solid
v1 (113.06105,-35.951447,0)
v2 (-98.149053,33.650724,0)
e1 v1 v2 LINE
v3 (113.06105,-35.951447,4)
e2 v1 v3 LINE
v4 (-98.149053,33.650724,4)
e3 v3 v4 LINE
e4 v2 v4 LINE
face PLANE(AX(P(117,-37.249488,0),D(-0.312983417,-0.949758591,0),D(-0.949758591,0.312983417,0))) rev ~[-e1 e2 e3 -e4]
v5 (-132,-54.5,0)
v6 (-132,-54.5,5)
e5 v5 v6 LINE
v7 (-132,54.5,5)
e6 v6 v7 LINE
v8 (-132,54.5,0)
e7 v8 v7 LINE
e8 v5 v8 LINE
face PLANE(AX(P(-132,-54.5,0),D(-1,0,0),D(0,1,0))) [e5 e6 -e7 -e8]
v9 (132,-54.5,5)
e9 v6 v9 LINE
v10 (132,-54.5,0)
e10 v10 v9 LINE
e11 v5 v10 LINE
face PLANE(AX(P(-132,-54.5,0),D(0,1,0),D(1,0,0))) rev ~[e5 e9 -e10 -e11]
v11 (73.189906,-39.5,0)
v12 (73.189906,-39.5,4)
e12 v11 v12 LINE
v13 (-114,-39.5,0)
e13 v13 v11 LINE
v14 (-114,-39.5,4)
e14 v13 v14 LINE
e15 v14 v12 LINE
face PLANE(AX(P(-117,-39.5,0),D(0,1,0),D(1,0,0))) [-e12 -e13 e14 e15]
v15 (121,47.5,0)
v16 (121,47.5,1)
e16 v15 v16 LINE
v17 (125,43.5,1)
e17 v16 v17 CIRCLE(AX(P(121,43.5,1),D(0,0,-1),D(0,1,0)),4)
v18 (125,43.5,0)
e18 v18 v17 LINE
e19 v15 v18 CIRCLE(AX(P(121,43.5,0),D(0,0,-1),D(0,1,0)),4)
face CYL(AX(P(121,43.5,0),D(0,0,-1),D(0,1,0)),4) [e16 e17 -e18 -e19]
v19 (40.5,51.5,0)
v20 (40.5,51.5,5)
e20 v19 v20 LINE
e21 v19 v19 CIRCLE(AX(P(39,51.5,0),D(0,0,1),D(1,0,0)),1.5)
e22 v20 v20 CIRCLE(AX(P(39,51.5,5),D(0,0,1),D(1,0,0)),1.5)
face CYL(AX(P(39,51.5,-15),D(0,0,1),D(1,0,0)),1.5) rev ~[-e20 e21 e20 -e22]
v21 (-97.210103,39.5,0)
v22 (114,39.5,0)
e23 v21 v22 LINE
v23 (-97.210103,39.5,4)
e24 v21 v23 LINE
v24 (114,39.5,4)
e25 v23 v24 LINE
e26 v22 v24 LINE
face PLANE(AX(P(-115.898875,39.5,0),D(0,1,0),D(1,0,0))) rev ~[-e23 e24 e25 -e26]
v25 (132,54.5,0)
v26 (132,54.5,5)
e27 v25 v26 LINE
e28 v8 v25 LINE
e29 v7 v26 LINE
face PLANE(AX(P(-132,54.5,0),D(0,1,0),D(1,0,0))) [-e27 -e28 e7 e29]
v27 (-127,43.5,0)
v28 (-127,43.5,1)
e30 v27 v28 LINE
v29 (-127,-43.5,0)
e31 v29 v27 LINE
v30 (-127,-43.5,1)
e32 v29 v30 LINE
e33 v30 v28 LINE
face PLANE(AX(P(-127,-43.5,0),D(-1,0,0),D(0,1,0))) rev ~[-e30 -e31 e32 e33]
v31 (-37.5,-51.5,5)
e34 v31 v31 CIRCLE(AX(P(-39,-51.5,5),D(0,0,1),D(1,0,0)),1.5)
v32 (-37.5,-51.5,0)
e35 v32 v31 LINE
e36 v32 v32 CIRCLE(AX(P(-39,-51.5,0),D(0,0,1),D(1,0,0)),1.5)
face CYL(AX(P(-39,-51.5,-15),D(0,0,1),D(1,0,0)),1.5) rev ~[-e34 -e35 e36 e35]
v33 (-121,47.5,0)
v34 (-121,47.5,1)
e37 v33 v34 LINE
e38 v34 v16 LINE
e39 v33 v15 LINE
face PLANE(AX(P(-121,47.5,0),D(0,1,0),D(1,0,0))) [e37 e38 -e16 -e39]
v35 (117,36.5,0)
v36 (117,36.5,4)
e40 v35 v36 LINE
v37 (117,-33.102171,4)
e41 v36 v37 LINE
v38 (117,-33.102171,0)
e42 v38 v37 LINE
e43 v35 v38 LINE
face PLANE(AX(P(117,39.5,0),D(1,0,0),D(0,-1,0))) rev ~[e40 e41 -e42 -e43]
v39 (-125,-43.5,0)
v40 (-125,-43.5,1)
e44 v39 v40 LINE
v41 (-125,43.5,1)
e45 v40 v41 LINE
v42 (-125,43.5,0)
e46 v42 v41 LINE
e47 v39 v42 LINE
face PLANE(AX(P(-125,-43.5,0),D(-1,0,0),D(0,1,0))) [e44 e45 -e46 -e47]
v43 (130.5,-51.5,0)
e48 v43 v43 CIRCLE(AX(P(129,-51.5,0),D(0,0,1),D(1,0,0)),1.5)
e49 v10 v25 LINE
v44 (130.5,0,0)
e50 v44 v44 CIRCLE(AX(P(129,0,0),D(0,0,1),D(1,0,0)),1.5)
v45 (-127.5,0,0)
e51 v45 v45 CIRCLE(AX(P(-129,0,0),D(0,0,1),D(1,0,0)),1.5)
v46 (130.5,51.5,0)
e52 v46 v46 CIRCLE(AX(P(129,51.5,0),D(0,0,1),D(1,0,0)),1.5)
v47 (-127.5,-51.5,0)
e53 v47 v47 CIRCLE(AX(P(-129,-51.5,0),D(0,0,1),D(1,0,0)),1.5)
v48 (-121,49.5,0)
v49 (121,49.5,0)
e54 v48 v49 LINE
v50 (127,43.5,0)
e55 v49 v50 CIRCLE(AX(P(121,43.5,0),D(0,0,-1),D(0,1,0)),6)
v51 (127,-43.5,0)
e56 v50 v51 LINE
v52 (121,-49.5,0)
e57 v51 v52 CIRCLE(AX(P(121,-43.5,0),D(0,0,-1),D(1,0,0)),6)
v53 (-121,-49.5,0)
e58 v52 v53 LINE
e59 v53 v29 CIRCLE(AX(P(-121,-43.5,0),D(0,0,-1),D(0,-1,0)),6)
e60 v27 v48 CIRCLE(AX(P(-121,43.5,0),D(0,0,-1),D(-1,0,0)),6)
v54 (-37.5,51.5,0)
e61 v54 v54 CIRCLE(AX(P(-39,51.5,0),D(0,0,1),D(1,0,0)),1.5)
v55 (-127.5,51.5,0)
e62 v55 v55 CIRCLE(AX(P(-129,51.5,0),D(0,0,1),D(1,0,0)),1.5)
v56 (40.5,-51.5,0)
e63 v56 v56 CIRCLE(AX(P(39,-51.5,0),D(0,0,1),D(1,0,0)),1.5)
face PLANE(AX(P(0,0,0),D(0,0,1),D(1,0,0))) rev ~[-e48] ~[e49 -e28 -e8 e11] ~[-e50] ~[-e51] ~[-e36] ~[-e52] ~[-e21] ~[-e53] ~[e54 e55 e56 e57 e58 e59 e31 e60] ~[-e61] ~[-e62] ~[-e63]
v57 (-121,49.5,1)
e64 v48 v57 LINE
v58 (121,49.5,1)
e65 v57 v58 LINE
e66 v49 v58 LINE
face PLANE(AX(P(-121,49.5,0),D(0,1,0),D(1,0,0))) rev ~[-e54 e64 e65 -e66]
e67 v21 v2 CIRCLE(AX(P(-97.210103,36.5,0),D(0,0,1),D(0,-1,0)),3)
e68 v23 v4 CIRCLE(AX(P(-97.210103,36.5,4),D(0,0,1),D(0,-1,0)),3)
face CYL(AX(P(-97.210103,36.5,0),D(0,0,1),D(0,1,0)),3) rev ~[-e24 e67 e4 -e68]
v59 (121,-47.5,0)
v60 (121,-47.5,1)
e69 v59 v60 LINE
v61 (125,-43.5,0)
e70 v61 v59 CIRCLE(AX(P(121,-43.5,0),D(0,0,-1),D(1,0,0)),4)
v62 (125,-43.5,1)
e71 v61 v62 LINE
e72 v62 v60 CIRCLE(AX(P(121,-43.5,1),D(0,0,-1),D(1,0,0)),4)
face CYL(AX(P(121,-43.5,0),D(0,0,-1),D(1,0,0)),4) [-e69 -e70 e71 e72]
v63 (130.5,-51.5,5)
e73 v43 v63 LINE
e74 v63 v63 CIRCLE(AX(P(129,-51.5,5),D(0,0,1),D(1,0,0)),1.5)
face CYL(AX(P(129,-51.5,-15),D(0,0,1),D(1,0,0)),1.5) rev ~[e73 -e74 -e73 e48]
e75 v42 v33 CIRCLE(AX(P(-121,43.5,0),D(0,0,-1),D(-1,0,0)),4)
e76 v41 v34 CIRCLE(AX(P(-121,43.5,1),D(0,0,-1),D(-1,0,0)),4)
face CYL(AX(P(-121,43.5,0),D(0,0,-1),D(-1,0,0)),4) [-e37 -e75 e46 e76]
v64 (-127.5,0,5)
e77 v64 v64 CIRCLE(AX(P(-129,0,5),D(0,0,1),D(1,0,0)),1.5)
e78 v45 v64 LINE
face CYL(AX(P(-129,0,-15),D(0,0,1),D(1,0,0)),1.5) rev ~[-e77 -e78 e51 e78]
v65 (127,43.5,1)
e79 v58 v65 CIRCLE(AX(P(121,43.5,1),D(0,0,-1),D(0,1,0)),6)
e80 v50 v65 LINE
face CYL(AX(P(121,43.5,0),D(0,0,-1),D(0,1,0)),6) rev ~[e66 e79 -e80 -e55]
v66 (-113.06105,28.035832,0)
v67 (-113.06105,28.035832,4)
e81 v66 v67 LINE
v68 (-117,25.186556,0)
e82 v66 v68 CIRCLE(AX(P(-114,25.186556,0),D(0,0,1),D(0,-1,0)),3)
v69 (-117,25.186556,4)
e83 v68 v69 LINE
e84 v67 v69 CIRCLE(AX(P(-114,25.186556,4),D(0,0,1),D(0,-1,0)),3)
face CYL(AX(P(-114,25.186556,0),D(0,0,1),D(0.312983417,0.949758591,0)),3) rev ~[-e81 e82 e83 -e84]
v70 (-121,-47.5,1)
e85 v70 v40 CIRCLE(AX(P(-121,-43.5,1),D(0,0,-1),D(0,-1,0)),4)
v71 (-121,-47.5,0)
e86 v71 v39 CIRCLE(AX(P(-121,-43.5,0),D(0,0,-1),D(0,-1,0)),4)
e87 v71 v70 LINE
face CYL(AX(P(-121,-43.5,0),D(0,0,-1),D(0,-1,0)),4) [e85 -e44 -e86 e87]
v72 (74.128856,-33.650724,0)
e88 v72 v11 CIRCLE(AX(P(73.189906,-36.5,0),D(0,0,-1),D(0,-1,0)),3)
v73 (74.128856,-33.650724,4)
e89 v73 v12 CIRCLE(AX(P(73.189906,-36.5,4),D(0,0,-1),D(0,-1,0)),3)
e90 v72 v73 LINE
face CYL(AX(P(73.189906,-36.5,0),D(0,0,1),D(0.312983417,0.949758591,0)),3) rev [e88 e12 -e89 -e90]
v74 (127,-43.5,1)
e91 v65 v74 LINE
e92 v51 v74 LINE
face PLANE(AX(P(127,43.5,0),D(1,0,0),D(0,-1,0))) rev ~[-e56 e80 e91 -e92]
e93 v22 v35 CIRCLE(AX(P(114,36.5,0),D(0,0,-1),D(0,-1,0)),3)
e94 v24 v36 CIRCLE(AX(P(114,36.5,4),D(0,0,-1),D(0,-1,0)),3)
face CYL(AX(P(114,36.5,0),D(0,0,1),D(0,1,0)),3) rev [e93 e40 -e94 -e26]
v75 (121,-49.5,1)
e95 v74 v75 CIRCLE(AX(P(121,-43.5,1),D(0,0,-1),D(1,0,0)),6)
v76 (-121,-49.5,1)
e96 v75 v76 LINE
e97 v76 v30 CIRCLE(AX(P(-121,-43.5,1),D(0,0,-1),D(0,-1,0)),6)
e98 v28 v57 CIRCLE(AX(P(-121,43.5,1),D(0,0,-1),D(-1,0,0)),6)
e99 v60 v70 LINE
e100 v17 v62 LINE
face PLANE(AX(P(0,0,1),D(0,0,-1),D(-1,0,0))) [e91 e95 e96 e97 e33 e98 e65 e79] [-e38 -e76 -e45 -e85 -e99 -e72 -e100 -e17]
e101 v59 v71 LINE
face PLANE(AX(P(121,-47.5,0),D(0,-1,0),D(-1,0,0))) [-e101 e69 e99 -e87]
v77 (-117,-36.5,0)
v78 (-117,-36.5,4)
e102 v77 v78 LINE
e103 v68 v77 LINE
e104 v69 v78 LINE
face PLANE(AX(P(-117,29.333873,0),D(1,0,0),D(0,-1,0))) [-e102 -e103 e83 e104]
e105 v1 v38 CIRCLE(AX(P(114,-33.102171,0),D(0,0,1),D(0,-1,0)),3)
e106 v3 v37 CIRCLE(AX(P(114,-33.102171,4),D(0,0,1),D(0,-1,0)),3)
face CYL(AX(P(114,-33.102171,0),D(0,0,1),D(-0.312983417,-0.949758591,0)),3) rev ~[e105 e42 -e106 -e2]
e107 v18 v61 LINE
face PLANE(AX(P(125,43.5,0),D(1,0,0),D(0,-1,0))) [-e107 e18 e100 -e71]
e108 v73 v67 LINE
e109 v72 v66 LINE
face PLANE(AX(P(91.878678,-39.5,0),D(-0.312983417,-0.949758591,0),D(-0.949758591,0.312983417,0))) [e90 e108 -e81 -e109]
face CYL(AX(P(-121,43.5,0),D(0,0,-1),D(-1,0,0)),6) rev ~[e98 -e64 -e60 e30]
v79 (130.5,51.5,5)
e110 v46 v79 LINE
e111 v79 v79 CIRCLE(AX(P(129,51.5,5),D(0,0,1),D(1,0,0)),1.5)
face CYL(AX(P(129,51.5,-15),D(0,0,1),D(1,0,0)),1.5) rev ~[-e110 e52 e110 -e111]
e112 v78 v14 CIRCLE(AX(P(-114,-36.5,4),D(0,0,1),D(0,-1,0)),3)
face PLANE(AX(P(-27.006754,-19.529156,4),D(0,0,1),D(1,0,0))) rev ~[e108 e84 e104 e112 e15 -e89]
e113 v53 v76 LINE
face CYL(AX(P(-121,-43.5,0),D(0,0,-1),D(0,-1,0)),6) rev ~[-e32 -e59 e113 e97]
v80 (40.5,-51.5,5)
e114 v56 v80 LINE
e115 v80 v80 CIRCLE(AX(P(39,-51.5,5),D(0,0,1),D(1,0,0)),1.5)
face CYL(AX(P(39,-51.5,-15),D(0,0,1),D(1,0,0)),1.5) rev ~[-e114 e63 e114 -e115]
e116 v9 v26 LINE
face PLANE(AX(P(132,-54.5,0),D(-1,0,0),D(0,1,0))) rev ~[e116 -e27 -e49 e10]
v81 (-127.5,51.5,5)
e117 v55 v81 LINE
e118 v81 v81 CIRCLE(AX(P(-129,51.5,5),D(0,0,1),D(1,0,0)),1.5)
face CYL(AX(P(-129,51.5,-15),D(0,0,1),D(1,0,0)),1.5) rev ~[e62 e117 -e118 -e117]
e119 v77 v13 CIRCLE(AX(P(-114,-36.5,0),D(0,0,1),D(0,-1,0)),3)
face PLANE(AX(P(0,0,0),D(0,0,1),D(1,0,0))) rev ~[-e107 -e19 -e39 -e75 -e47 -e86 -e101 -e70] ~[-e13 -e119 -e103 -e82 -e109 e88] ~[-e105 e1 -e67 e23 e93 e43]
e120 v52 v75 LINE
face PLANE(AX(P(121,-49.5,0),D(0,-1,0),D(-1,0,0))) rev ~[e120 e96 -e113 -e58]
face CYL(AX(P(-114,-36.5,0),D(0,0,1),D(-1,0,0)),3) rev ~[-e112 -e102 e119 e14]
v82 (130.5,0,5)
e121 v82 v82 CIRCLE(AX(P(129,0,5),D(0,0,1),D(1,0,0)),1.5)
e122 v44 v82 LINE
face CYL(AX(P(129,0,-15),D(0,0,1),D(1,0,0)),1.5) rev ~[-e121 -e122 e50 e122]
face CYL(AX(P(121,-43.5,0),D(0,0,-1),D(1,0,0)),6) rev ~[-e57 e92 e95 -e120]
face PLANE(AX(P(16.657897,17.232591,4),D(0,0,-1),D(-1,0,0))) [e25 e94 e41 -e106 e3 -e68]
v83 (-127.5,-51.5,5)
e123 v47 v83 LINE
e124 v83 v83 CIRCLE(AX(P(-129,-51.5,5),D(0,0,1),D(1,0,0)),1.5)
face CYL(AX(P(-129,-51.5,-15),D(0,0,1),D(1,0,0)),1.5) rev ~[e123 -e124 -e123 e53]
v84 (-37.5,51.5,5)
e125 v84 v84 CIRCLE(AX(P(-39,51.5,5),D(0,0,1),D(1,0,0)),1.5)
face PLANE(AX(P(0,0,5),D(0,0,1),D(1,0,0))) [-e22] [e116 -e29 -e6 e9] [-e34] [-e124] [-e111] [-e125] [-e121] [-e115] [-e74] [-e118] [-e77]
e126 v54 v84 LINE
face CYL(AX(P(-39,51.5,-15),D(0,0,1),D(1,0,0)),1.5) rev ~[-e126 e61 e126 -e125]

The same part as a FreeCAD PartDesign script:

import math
import FreeCAD as App
import Part
import Sketcher
Q = App.Units.Quantity


def edges_at(feature, points):
    """Names of the edges that pass closest to the given points."""
    edges = feature.Shape.Edges
    near = lambda p: min(range(len(edges)), key=lambda i: edges[i].distToShape(Part.Vertex(*p))[0])
    return sorted({f"Edge{near(p) + 1}" for p in points})


def add_polygon(sketch, points):
    """Adds a closed chain of lines whose ends are joined by coincident constraints."""
    first, n = sketch.GeometryCount, len(points)
    for a, b in zip(points, points[1:] + points[:1]):
        sketch.addGeometry(Part.LineSegment(App.Vector(*a, 0), App.Vector(*b, 0)), False)
    for i in range(n):
        sketch.addConstraint(Sketcher.Constraint("Coincident", first + i, 2, first + (i + 1) % n, 1))

doc = App.newDocument("Part")
body = doc.addObject("PartDesign::Body", "Body")

sketch1 = doc.addObject("Sketcher::SketchObject", "Sketch")
body.addObject(sketch1)
sketch1.AttachmentSupport = (doc.XY_Plane, [""])
sketch1.MapMode = "FlatFace"
add_polygon(sketch1, [(-132, 54), (-132, -54), (132, -54), (132, 54)])
sketch1.addConstraint([
    Sketcher.Constraint("Vertical", 0),
    Sketcher.Constraint("Horizontal", 1),
    Sketcher.Constraint("Vertical", 2),
    Sketcher.Constraint("Horizontal", 3),
    Sketcher.Constraint("Symmetric", 0, 2, 2, 2, -1, 1),
    Sketcher.Constraint("DistanceX", 1, 1, 1, 2, Q("264 mm")),
    Sketcher.Constraint("DistanceY", 0, 2, 0, 1, Q("109 mm")),
])
pad1 = doc.addObject("PartDesign::Pad", "Pad")
body.addObject(pad1)
pad1.Profile = sketch1
pad1.Length = 5

sketch2 = doc.addObject("Sketcher::SketchObject", "Sketch001")
body.addObject(sketch2)
sketch2.AttachmentSupport = (doc.XY_Plane, [""])
sketch2.MapMode = "FlatFace"
sketch2.addGeometry([
    Part.LineSegment(App.Vector(-121, 49.5, 0), App.Vector(121, 49.5, 0)),
    Part.ArcOfCircle(Part.Circle(App.Vector(121, 43.5, 0), App.Vector(0, 0, 1), 6), math.radians(0), math.radians(90)),
    Part.LineSegment(App.Vector(127, 43.5, 0), App.Vector(127, -43.5, 0)),
    Part.ArcOfCircle(Part.Circle(App.Vector(121, -43.5, 0), App.Vector(0, 0, 1), 6), math.radians(-90), math.radians(0)),
    Part.LineSegment(App.Vector(121, -49.5, 0), App.Vector(-121, -49.5, 0)),
    Part.ArcOfCircle(Part.Circle(App.Vector(-121, -43.5, 0), App.Vector(0, 0, 1), 6), math.radians(180), math.radians(270)),
    Part.LineSegment(App.Vector(-127, -43.5, 0), App.Vector(-127, 43.5, 0)),
    Part.ArcOfCircle(Part.Circle(App.Vector(-121, 43.5, 0), App.Vector(0, 0, 1), 6), math.radians(90), math.radians(180)),
    Part.LineSegment(App.Vector(121, 47.5, 0), App.Vector(-121, 47.5, 0)),
    Part.ArcOfCircle(Part.Circle(App.Vector(-121, 43.5, 0), App.Vector(0, 0, 1), 4), math.radians(90), math.radians(180)),
    Part.LineSegment(App.Vector(-125, 43.5, 0), App.Vector(-125, -43.5, 0)),
    Part.ArcOfCircle(Part.Circle(App.Vector(-121, -43.5, 0), App.Vector(0, 0, 1), 4), math.radians(180), math.radians(270)),
    Part.LineSegment(App.Vector(-121, -47.5, 0), App.Vector(121, -47.5, 0)),
    Part.ArcOfCircle(Part.Circle(App.Vector(121, -43.5, 0), App.Vector(0, 0, 1), 4), math.radians(-90), math.radians(0)),
    Part.LineSegment(App.Vector(125, -43.5, 0), App.Vector(125, 43.5, 0)),
    Part.ArcOfCircle(Part.Circle(App.Vector(121, 43.5, 0), App.Vector(0, 0, 1), 4), math.radians(0), math.radians(90)),
], False)
sketch2.addConstraint([
    Sketcher.Constraint("Tangent", 0, 2, 1, 2),
    Sketcher.Constraint("Tangent", 1, 1, 2, 1),
    Sketcher.Constraint("Tangent", 2, 2, 3, 2),
    Sketcher.Constraint("Tangent", 3, 1, 4, 1),
    Sketcher.Constraint("Tangent", 4, 2, 5, 2),
    Sketcher.Constraint("Tangent", 5, 1, 6, 1),
    Sketcher.Constraint("Tangent", 6, 2, 7, 2),
    Sketcher.Constraint("Tangent", 7, 1, 0, 1),
    Sketcher.Constraint("Tangent", 8, 2, 9, 1),
    Sketcher.Constraint("Tangent", 9, 2, 10, 1),
    Sketcher.Constraint("Tangent", 10, 2, 11, 1),
    Sketcher.Constraint("Tangent", 11, 2, 12, 1),
    Sketcher.Constraint("Tangent", 12, 2, 13, 1),
    Sketcher.Constraint("Tangent", 13, 2, 14, 1),
    Sketcher.Constraint("Tangent", 14, 2, 15, 1),
    Sketcher.Constraint("Tangent", 15, 2, 8, 1),
    Sketcher.Constraint("Horizontal", 0),
    Sketcher.Constraint("Vertical", 2),
    Sketcher.Constraint("Horizontal", 4),
    Sketcher.Constraint("Vertical", 6),
    Sketcher.Constraint("Horizontal", 8),
    Sketcher.Constraint("Vertical", 10),
    Sketcher.Constraint("Horizontal", 12),
    Sketcher.Constraint("Vertical", 14),
    Sketcher.Constraint("Coincident", 9, 3, 7, 3),
    Sketcher.Constraint("Coincident", 11, 3, 5, 3),
    Sketcher.Constraint("Coincident", 13, 3, 3, 3),
    Sketcher.Constraint("Equal", 1, 3),
    Sketcher.Constraint("Equal", 3, 5),
    Sketcher.Constraint("Equal", 5, 7),
    Sketcher.Constraint("Equal", 13, 15),
    Sketcher.Constraint("Symmetric", 1, 3, 5, 3, -1, 1),
    Sketcher.Constraint("Radius", 1, Q("6 mm")),
    Sketcher.Constraint("Radius", 9, Q("4 mm")),
    Sketcher.Constraint("DistanceX", 0, 1, 0, 2, Q("242 mm")),
    Sketcher.Constraint("DistanceY", 2, 2, 2, 1, Q("87 mm")),
])
pocket1 = doc.addObject("PartDesign::Pocket", "Pocket")
body.addObject(pocket1)
pocket1.Profile = sketch2
pocket1.Length = 1
pocket1.Reversed = True

sketch3 = doc.addObject("Sketcher::SketchObject", "Sketch002")
body.addObject(sketch3)
sketch3.AttachmentSupport = (doc.XY_Plane, [""])
sketch3.MapMode = "FlatFace"
add_polygon(sketch3, [(117, 40), (117, -37), (-116, 40)])
add_polygon(sketch3, [(-117, 29), (92, -40), (-117, -40)])
sketch3.addConstraint([
    Sketcher.Constraint("Vertical", 0),
    Sketcher.Constraint("Horizontal", 2),
    Sketcher.Constraint("Horizontal", 4),
    Sketcher.Constraint("Vertical", 5),
    Sketcher.Constraint("Symmetric", 2, 2, 4, 2, -1, 1),
    Sketcher.Constraint("Parallel", 1, 3),
    Sketcher.Constraint("DistanceX", -1, 1, 0, 2, Q("117 mm")),
    Sketcher.Constraint("DistanceY", 3, 2, 2, 2, Q("79 mm")),
    Sketcher.Constraint("DistanceX", 4, 2, 4, 1, Q("208.878678 mm")),
    Sketcher.Constraint("DistanceY", 0, 2, 0, 1, Q("76.749488 mm")),
    Sketcher.Constraint("Distance", 3, Q("219.92818 mm")),
])
pocket2 = doc.addObject("PartDesign::Pocket", "Pocket001")
body.addObject(pocket2)
pocket2.Profile = sketch3
pocket2.Length = 4
pocket2.Reversed = True
doc.recompute()

fillet = doc.addObject("PartDesign::Fillet", "Fillet")
body.addObject(fillet)
fillet.Base = (pocket2, edges_at(pocket2, [
    (117, 39.5, 2),
    (-115.899, 39.5, 2),
    (117, -37.249, 2),
    (-117, -39.5, 2),
    (91.879, -39.5, 2),
    (-117, 29.334, 2),
]))
fillet.Radius = 3

sketch4 = doc.addObject("Sketcher::SketchObject", "Sketch003")
body.addObject(sketch4)
sketch4.AttachmentSupport = (doc.XY_Plane, [""])
sketch4.MapMode = "FlatFace"
sketch4.addGeometry([
    Part.Circle(App.Vector(129, -51.5, 0), App.Vector(0, 0, 1), 1.5),
    Part.Circle(App.Vector(129, 51.5, 0), App.Vector(0, 0, 1), 1.5),
    Part.Circle(App.Vector(-129, 51.5, 0), App.Vector(0, 0, 1), 1.5),
    Part.Circle(App.Vector(-129, -51.5, 0), App.Vector(0, 0, 1), 1.5),
    Part.Circle(App.Vector(39, -51.5, 0), App.Vector(0, 0, 1), 1.5),
    Part.Circle(App.Vector(-39, -51.5, 0), App.Vector(0, 0, 1), 1.5),
    Part.Circle(App.Vector(-39, 51.5, 0), App.Vector(0, 0, 1), 1.5),
    Part.Circle(App.Vector(39, 51.5, 0), App.Vector(0, 0, 1), 1.5),
    Part.Circle(App.Vector(-129, 0, 0), App.Vector(0, 0, 1), 1.5),
    Part.Circle(App.Vector(129, 0, 0), App.Vector(0, 0, 1), 1.5),
], False)
sketch4.addConstraint([
    Sketcher.Constraint("Equal", 0, 1),
    Sketcher.Constraint("Equal", 1, 2),
    Sketcher.Constraint("Equal", 2, 3),
    Sketcher.Constraint("Equal", 3, 4),
    Sketcher.Constraint("Equal", 4, 5),
    Sketcher.Constraint("Equal", 5, 6),
    Sketcher.Constraint("Equal", 6, 7),
    Sketcher.Constraint("Equal", 7, 8),
    Sketcher.Constraint("Equal", 8, 9),
    Sketcher.Constraint("Symmetric", 0, 3, 2, 3, -1, 1),
    Sketcher.Constraint("Symmetric", 1, 3, 3, 3, -1, 1),
    Sketcher.Constraint("Symmetric", 4, 3, 6, 3, -1, 1),
    Sketcher.Constraint("Symmetric", 5, 3, 7, 3, -1, 1),
    Sketcher.Constraint("Symmetric", 8, 3, 9, 3, -1, 1),
    Sketcher.Constraint("Symmetric", 1, 3, 2, 3, -2),
    Sketcher.Constraint("Symmetric", 4, 3, 5, 3, -2),
    Sketcher.Constraint("PointOnObject", 8, 3, -1),
    Sketcher.Constraint("Horizontal", 3, 3, 4, 3),
    Sketcher.Constraint("Vertical", 3, 3, 8, 3),
    Sketcher.Constraint("Diameter", 0, Q("3 mm")),
    Sketcher.Constraint("DistanceX", -1, 1, 0, 3, Q("129 mm")),
    Sketcher.Constraint("DistanceX", -1, 1, 4, 3, Q("39 mm")),
    Sketcher.Constraint("DistanceY", 0, 3, 1, 3, Q("103 mm")),
])
doc.recompute()
hole = doc.addObject("PartDesign::Hole", "Hole")
body.addObject(hole)
hole.Profile = sketch4
hole.ThreadType = "None"
hole.Diameter = 3
hole.DepthType = "Dimension"
hole.Depth = 15
hole.DrillPoint = "Angled"
hole.DrillPointAngle = 118
hole.Reversed = True

doc.recompute()
